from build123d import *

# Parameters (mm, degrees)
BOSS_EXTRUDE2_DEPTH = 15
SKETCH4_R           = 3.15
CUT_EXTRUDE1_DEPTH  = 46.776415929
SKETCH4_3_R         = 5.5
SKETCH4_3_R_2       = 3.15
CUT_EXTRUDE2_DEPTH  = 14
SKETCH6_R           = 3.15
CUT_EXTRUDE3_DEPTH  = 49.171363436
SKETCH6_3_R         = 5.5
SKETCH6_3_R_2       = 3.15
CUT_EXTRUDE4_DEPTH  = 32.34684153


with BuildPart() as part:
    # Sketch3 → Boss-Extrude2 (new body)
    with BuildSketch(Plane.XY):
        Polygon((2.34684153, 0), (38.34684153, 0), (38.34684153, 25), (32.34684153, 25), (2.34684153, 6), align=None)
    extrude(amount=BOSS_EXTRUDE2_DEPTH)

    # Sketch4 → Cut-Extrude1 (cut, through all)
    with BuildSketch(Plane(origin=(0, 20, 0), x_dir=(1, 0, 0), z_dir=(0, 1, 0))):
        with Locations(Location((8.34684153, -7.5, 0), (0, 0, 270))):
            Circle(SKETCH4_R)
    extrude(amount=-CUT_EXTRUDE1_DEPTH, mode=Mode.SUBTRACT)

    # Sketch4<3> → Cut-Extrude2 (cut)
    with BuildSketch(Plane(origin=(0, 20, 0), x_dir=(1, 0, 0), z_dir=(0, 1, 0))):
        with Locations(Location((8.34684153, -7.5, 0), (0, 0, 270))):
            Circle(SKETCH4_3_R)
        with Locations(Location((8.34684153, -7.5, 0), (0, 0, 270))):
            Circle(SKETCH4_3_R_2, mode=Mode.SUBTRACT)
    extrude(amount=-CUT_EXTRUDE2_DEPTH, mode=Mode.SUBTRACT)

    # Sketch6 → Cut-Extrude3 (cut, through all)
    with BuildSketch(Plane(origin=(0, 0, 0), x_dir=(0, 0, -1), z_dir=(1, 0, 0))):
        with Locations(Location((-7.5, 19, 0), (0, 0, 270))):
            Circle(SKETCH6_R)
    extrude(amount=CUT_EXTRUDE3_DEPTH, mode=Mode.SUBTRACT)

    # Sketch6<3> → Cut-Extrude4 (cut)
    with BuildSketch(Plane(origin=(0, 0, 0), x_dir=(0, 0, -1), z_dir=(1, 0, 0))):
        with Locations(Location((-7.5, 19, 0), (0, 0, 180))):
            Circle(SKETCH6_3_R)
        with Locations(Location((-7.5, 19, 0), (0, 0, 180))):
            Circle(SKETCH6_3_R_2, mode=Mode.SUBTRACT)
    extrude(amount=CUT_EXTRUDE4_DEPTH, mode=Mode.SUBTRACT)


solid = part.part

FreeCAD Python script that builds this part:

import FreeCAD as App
import Part
import Sketcher
from FreeCAD import Vector

doc = App.newDocument("Part")
body = doc.addObject("PartDesign::Body", "Body")

# Sketch on XY plane
sketch1 = doc.addObject("Sketcher::SketchObject", "Sketch")
body.addObject(sketch1)
sketch1.AttachmentSupport = (doc.XY_Plane, [""])
sketch1.MapMode = "FlatFace"
sketch1.addGeometry(Part.LineSegment(Vector(2, 0, 0), Vector(38, 0, 0)), False)
sketch1.addGeometry(Part.LineSegment(Vector(38, 0, 0), Vector(38, 25, 0)), False)
sketch1.addGeometry(Part.LineSegment(Vector(38, 25, 0), Vector(32, 25, 0)), False)
sketch1.addGeometry(Part.LineSegment(Vector(32, 25, 0), Vector(2, 6, 0)), False)
sketch1.addGeometry(Part.LineSegment(Vector(2, 6, 0), Vector(2, 0, 0)), False)
sketch1.addConstraint(Sketcher.Constraint("Coincident", 0, 2, 1, 1))
sketch1.addConstraint(Sketcher.Constraint("Coincident", 1, 2, 2, 1))
sketch1.addConstraint(Sketcher.Constraint("Coincident", 2, 2, 3, 1))
sketch1.addConstraint(Sketcher.Constraint("Coincident", 3, 2, 4, 1))
sketch1.addConstraint(Sketcher.Constraint("Coincident", 4, 2, 0, 1))
sketch1.addConstraint(Sketcher.Constraint("Horizontal", 0))
sketch1.addConstraint(Sketcher.Constraint("Vertical", 1))
sketch1.addConstraint(Sketcher.Constraint("Horizontal", 2))
sketch1.addConstraint(Sketcher.Constraint("Vertical", 4))
sketch1.addConstraint(Sketcher.Constraint("PointOnObject", 0, 2, -1))
sketch1.addConstraint(Sketcher.Constraint("Equal", 2, 4))
sketch1.addConstraint(Sketcher.Constraint("DistanceX", 0, 1, 0, 2, 36.0))
sketch1.addConstraint(Sketcher.Constraint("DistanceX", 2, 2, 2, 1, 6.0))
sketch1.addConstraint(Sketcher.Constraint("DistanceY", 1, 1, 1, 2, 25.0))
sketch1.addConstraint(Sketcher.Constraint("DistanceX", -1, 1, 0, 2, 38.346842))
pad1 = doc.addObject("PartDesign::Pad", "Pad")
body.addObject(pad1)
pad1.Profile = sketch1
pad1.Length = 15

# Sketch on XZ plane
sketch2 = doc.addObject("Sketcher::SketchObject", "Sketch001")
body.addObject(sketch2)
sketch2.AttachmentSupport = (doc.XZ_Plane, [""])
sketch2.MapMode = "FlatFace"
sketch2.AttachmentOffset = App.Placement(Vector(0, 0, -20), App.Rotation())
sketch2.addGeometry(Part.Circle(Vector(8.3, 7.5, 0), Vector(0, 0, 1), 3.1), False)
sketch2.addConstraint(Sketcher.Constraint("Diameter", 0, 6.3))
sketch2.addConstraint(Sketcher.Constraint("DistanceY", -1, 1, 0, 3, 7.5))
sketch2.addConstraint(Sketcher.Constraint("DistanceX", -1, 1, 0, 3, 8.346842))
pocket1 = doc.addObject("PartDesign::Pocket", "Pocket")
body.addObject(pocket1)
pocket1.Profile = sketch2
pocket1.Type = "ThroughAll"
pocket1.Reversed = True

# Sketch on XZ plane
sketch3 = doc.addObject("Sketcher::SketchObject", "Sketch002")
body.addObject(sketch3)
sketch3.AttachmentSupport = (doc.XZ_Plane, [""])
sketch3.MapMode = "FlatFace"
sketch3.AttachmentOffset = App.Placement(Vector(0, 0, -20), App.Rotation())
sketch3.addGeometry(Part.Circle(Vector(8.3, 7.5, 0), Vector(0, 0, 1), 5.5), False)
sketch3.addGeometry(Part.Circle(Vector(8.3, 7.5, 0), Vector(0, 0, 1), 3.1), False)
sketch3.addConstraint(Sketcher.Constraint("Coincident", 1, 3, 0, 3))
sketch3.addConstraint(Sketcher.Constraint("Diameter", 0, 11.0))
sketch3.addConstraint(Sketcher.Constraint("Diameter", 1, 6.3))
sketch3.addConstraint(Sketcher.Constraint("DistanceY", -1, 1, 0, 3, 7.5))
sketch3.addConstraint(Sketcher.Constraint("DistanceX", -1, 1, 0, 3, 8.346842))
pocket2 = doc.addObject("PartDesign::Pocket", "Pocket001")
body.addObject(pocket2)
pocket2.Profile = sketch3
pocket2.Length = 14
pocket2.Reversed = True

# Sketch on YZ plane
sketch4 = doc.addObject("Sketcher::SketchObject", "Sketch003")
body.addObject(sketch4)
sketch4.AttachmentSupport = (doc.YZ_Plane, [""])
sketch4.MapMode = "FlatFace"
sketch4.addGeometry(Part.Circle(Vector(19, 7.5, 0), Vector(0, 0, 1), 3.1), False)
sketch4.addConstraint(Sketcher.Constraint("Diameter", 0, 6.3))
sketch4.addConstraint(Sketcher.Constraint("DistanceX", -1, 1, 0, 3, 19.0))
sketch4.addConstraint(Sketcher.Constraint("DistanceY", -1, 1, 0, 3, 7.5))
pocket3 = doc.addObject("PartDesign::Pocket", "Pocket002")
body.addObject(pocket3)
pocket3.Profile = sketch4
pocket3.Type = "ThroughAll"
pocket3.Reversed = True

# Sketch on YZ plane
sketch5 = doc.addObject("Sketcher::SketchObject", "Sketch004")
body.addObject(sketch5)
sketch5.AttachmentSupport = (doc.YZ_Plane, [""])
sketch5.MapMode = "FlatFace"
sketch5.addGeometry(Part.Circle(Vector(19, 7.5, 0), Vector(0, 0, 1), 5.5), False)
sketch5.addGeometry(Part.Circle(Vector(19, 7.5, 0), Vector(0, 0, 1), 3.1), False)
sketch5.addConstraint(Sketcher.Constraint("Coincident", 1, 3, 0, 3))
sketch5.addConstraint(Sketcher.Constraint("Diameter", 0, 11.0))
sketch5.addConstraint(Sketcher.Constraint("Diameter", 1, 6.3))
sketch5.addConstraint(Sketcher.Constraint("DistanceX", -1, 1, 0, 3, 19.0))
sketch5.addConstraint(Sketcher.Constraint("DistanceY", -1, 1, 0, 3, 7.5))
pocket4 = doc.addObject("PartDesign::Pocket", "Pocket003")
body.addObject(pocket4)
pocket4.Profile = sketch5
pocket4.Length = 32.346842
pocket4.Reversed = True

doc.recompute()
